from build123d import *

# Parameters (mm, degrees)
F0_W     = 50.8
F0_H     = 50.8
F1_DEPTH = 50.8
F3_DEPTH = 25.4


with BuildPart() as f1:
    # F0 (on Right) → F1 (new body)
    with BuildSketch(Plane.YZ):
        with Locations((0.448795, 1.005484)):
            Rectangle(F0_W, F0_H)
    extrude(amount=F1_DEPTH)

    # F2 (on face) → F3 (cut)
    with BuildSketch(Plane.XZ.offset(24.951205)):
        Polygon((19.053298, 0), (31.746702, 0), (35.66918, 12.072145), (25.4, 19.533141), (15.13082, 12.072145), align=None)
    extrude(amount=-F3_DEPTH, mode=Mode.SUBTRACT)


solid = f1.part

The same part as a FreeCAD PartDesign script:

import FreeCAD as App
import Part
import Sketcher
Q = App.Units.Quantity

doc = App.newDocument("Part")
body = doc.addObject("PartDesign::Body", "Body")

sketch1 = doc.addObject("Sketcher::SketchObject", "Sketch")
body.addObject(sketch1)
sketch1.AttachmentSupport = (doc.YZ_Plane, [""])
sketch1.MapMode = "FlatFace"
sketch1.addGeometry([
    Part.LineSegment(App.Vector(-25, 26, 0), App.Vector(-25, -24, 0)),
    Part.LineSegment(App.Vector(-25, -24, 0), App.Vector(26, -24, 0)),
    Part.LineSegment(App.Vector(26, -24, 0), App.Vector(26, 26, 0)),
    Part.LineSegment(App.Vector(26, 26, 0), App.Vector(-25, 26, 0)),
], False)
sketch1.addConstraint([
    Sketcher.Constraint("Coincident", 0, 2, 1, 1),
    Sketcher.Constraint("Coincident", 1, 2, 2, 1),
    Sketcher.Constraint("Coincident", 2, 2, 3, 1),
    Sketcher.Constraint("Coincident", 3, 2, 0, 1),
    Sketcher.Constraint("Vertical", 0),
    Sketcher.Constraint("Horizontal", 1),
    Sketcher.Constraint("Vertical", 2),
    Sketcher.Constraint("Horizontal", 3),
    Sketcher.Constraint("Equal", 3, 0),
    Sketcher.Constraint("DistanceX", 1, 1, 1, 2, Q("2 in")),
    Sketcher.Constraint("DistanceX", 0, 2, -1, 1, Q("24.951205 mm")),
    Sketcher.Constraint("DistanceY", 0, 2, -1, 1, Q("24.394516 mm")),
])
pad1 = doc.addObject("PartDesign::Pad", "Pad")
body.addObject(pad1)
pad1.Profile = sketch1
pad1.Length = Q("2 in")

sketch2 = doc.addObject("Sketcher::SketchObject", "Sketch001")
body.addObject(sketch2)
sketch2.AttachmentSupport = (doc.XZ_Plane, [""])
sketch2.MapMode = "FlatFace"
sketch2.AttachmentOffset = App.Placement(App.Vector(0, 0, 24.951205), App.Rotation())
sketch2.addGeometry([
    Part.LineSegment(App.Vector(19, 0, 0), App.Vector(32, 0, 0)),
    Part.LineSegment(App.Vector(32, 0, 0), App.Vector(36, 12, 0)),
    Part.LineSegment(App.Vector(36, 12, 0), App.Vector(25, 20, 0)),
    Part.LineSegment(App.Vector(25, 20, 0), App.Vector(15, 12, 0)),
    Part.LineSegment(App.Vector(15, 12, 0), App.Vector(19, 0, 0)),
], False)
sketch2.addConstraint([
    Sketcher.Constraint("Coincident", 0, 2, 1, 1),
    Sketcher.Constraint("Coincident", 1, 2, 2, 1),
    Sketcher.Constraint("Coincident", 2, 2, 3, 1),
    Sketcher.Constraint("Coincident", 3, 2, 4, 1),
    Sketcher.Constraint("Coincident", 4, 2, 0, 1),
    Sketcher.Constraint("Horizontal", 0),
    Sketcher.Constraint("PointOnObject", 0, 2, -1),
    Sketcher.Constraint("Horizontal", 1, 2, 3, 2),
    Sketcher.Constraint("Equal", 1, 2),
    Sketcher.Constraint("Equal", 2, 3),
    Sketcher.Constraint("Equal", 3, 4),
    Sketcher.Constraint("DistanceX", -1, 1, 2, 2, Q("1 in")),
    Sketcher.Constraint("Angle", 1, Q("71.999999 deg")),
    Sketcher.Constraint("Angle", 2, Q("144 deg")),
    Sketcher.Constraint("DistanceX", -1, 1, 0, 2, Q("31.746702 mm")),
])
pocket1 = doc.addObject("PartDesign::Pocket", "Pocket")
body.addObject(pocket1)
pocket1.Profile = sketch2
pocket1.Length = Q("1 in")

doc.recompute()
